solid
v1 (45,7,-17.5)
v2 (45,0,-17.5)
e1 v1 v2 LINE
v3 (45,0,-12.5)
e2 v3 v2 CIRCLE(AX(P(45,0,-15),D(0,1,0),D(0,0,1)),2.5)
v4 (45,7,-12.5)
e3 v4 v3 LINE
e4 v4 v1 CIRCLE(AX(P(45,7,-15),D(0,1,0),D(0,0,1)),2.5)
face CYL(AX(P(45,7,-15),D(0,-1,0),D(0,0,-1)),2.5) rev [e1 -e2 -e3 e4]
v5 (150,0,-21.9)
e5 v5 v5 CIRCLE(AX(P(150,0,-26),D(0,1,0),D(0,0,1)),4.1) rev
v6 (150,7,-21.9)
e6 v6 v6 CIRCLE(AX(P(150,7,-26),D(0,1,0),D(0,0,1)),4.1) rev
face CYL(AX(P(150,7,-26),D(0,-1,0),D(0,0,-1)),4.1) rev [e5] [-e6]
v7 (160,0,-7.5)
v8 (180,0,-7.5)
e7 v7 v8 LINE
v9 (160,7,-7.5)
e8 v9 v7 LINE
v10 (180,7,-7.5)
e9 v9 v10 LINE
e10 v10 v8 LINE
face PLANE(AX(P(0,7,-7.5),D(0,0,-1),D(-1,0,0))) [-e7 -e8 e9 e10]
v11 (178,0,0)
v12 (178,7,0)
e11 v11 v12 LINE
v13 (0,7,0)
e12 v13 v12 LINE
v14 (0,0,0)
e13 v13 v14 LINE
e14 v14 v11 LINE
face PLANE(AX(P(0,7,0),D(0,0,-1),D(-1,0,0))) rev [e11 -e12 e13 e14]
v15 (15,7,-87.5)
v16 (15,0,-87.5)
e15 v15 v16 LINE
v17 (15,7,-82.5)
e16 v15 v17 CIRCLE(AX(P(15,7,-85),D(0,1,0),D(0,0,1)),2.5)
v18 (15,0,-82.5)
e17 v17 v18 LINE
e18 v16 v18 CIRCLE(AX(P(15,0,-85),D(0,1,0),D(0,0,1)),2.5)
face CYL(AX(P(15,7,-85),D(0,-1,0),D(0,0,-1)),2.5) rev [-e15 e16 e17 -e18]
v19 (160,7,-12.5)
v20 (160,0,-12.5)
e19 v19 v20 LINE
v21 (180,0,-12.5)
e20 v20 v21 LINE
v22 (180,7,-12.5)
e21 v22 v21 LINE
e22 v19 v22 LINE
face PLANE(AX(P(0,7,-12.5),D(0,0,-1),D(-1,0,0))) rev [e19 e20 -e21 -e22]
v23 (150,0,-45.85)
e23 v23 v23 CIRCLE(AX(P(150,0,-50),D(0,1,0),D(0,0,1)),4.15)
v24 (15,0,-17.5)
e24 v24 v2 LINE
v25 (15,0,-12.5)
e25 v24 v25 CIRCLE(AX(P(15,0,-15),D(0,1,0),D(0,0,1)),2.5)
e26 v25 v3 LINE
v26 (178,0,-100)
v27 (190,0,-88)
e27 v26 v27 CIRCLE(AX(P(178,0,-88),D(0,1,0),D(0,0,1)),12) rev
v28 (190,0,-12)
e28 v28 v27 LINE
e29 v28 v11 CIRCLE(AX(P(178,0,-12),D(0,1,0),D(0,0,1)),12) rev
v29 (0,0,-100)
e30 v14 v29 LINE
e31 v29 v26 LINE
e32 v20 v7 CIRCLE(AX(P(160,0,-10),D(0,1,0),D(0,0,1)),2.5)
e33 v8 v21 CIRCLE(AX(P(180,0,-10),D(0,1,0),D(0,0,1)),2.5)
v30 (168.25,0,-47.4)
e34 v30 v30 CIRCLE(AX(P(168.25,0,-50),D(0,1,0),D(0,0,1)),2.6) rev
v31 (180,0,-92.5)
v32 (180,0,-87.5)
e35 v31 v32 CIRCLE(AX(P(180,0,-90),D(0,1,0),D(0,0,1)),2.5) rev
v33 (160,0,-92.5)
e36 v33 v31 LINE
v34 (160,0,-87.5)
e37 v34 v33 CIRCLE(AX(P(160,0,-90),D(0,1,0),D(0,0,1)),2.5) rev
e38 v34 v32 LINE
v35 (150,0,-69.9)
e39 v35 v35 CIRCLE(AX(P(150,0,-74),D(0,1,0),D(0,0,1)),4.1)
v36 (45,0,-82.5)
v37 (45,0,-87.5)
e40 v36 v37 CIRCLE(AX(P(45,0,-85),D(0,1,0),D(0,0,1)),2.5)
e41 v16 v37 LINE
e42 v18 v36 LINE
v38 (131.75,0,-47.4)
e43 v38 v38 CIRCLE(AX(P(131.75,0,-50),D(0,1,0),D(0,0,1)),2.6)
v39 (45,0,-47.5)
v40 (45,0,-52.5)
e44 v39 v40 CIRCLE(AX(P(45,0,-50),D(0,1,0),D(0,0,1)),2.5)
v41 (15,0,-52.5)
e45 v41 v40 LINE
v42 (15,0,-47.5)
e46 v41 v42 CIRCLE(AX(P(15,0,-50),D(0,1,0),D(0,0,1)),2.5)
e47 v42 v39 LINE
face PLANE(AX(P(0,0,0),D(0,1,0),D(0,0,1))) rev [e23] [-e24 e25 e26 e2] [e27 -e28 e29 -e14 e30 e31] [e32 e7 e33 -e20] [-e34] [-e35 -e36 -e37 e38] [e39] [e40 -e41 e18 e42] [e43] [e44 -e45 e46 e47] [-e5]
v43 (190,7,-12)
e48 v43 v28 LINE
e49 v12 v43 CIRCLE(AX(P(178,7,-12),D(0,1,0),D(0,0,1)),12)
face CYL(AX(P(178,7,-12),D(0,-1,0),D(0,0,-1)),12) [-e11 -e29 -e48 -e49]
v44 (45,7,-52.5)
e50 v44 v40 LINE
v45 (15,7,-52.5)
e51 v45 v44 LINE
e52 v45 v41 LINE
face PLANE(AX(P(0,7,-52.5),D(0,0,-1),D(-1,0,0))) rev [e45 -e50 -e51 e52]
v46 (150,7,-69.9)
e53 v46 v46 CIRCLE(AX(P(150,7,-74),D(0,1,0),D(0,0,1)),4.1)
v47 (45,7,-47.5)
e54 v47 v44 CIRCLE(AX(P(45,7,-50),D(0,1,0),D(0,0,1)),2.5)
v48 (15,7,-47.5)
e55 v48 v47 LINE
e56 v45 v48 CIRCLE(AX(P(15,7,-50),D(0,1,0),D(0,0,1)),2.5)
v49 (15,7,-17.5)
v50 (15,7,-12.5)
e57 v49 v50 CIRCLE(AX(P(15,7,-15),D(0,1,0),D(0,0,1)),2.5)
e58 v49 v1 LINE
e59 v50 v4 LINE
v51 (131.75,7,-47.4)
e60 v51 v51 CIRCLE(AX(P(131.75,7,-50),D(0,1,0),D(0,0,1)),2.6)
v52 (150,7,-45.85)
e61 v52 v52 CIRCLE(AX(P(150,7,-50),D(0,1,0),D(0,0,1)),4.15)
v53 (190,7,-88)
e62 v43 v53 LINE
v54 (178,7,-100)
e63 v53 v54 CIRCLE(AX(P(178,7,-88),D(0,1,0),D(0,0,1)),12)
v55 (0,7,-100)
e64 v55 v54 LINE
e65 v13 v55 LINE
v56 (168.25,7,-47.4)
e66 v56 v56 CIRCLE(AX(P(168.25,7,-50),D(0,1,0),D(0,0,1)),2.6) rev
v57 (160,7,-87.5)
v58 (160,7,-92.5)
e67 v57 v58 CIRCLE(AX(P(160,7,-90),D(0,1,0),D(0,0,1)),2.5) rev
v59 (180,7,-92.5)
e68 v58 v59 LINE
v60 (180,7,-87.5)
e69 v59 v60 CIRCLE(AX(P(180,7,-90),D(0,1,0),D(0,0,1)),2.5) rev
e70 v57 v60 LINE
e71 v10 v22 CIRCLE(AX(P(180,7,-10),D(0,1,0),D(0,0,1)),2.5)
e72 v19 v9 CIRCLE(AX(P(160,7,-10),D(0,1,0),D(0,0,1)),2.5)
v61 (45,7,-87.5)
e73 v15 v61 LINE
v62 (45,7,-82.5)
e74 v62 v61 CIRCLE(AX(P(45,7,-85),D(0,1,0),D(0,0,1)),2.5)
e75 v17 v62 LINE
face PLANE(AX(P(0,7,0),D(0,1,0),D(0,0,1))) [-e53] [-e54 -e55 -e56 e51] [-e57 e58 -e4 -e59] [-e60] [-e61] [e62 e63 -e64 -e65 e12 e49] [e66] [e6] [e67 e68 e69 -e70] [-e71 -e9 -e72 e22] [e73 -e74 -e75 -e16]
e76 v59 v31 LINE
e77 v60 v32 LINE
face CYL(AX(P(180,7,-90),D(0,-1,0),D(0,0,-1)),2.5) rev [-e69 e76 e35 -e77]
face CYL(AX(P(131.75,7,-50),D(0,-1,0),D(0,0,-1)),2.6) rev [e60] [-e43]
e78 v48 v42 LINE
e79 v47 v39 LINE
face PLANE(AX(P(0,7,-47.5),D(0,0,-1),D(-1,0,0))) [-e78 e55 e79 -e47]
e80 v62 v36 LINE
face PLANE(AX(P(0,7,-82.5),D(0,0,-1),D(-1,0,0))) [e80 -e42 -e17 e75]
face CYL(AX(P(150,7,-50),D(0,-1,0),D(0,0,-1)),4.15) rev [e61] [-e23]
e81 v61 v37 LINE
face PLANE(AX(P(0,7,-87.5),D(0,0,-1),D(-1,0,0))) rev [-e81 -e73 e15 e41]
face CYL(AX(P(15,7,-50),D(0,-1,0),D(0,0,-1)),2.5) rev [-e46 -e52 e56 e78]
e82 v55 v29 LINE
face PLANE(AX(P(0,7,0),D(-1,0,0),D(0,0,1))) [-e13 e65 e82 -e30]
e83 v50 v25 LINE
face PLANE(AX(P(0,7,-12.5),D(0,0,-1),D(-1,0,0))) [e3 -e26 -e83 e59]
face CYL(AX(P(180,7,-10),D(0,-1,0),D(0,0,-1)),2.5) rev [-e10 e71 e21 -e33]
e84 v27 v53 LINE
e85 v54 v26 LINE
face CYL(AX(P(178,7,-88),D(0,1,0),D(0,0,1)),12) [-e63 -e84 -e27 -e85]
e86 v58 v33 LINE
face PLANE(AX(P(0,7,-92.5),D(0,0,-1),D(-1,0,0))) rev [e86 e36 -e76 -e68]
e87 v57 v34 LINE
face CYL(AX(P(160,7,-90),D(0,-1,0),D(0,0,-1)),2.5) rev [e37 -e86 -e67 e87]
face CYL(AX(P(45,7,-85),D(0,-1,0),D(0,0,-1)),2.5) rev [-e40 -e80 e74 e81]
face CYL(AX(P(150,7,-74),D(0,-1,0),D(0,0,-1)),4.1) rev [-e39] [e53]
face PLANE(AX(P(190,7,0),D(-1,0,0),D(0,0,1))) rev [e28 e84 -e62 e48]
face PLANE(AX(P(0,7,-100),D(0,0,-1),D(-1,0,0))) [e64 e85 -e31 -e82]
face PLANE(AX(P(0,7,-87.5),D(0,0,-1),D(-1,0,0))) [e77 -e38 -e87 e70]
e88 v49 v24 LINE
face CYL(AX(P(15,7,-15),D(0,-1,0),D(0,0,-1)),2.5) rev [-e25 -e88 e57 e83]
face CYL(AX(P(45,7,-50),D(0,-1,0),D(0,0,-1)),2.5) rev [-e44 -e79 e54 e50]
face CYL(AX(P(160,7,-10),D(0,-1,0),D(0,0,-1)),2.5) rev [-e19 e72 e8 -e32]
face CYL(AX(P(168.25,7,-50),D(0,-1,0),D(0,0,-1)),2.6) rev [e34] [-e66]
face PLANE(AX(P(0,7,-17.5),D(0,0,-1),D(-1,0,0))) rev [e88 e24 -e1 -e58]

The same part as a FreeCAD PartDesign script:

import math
import FreeCAD as App
import Part
import Sketcher
from FreeCAD import Vector


def edges_at(feature, points):
    """Names of the edges that pass closest to the given points."""
    edges = feature.Shape.Edges
    near = lambda p: min(range(len(edges)), key=lambda i: edges[i].distToShape(Part.Vertex(*p))[0])
    return sorted({f"Edge{near(p) + 1}" for p in points})

doc = App.newDocument("Part")
body = doc.addObject("PartDesign::Body", "Body")

sketch1 = doc.addObject("Sketcher::SketchObject", "Sketch")
body.addObject(sketch1)
sketch1.AttachmentSupport = (doc.XZ_Plane, [""])
sketch1.MapMode = "FlatFace"
sketch1.addGeometry(Part.LineSegment(Vector(0, -100, 0), Vector(0, 0, 0)), False)
sketch1.addGeometry(Part.LineSegment(Vector(0, 0, 0), Vector(190, 0, 0)), False)
sketch1.addGeometry(Part.LineSegment(Vector(190, 0, 0), Vector(190, -100, 0)), False)
sketch1.addGeometry(Part.LineSegment(Vector(190, -100, 0), Vector(0, -100, 0)), False)
sketch1.addGeometry(Part.ArcOfCircle(Part.Circle(Vector(15, -15, 0), Vector(0, 0, 1), 2.5), math.radians(90), math.radians(270)), False)
sketch1.addGeometry(Part.LineSegment(Vector(15, -17.5, 0), Vector(45, -17.5, 0)), False)
sketch1.addGeometry(Part.ArcOfCircle(Part.Circle(Vector(45, -15, 0), Vector(0, 0, 1), 2.5), math.radians(-90), math.radians(90)), False)
sketch1.addGeometry(Part.LineSegment(Vector(45, -12.5, 0), Vector(15, -12.5, 0)), False)
sketch1.addGeometry(Part.ArcOfCircle(Part.Circle(Vector(160, -10, 0), Vector(0, 0, 1), 2.5), math.radians(90), math.radians(270)), False)
sketch1.addGeometry(Part.LineSegment(Vector(160, -12.5, 0), Vector(180, -12.5, 0)), False)
sketch1.addGeometry(Part.ArcOfCircle(Part.Circle(Vector(180, -10, 0), Vector(0, 0, 1), 2.5), math.radians(-90), math.radians(90)), False)
sketch1.addGeometry(Part.LineSegment(Vector(180, -7.5, 0), Vector(160, -7.5, 0)), False)
sketch1.addGeometry(Part.Circle(Vector(150, -26, 0), Vector(0, 0, 1), 4.1), False)
sketch1.addGeometry(Part.ArcOfCircle(Part.Circle(Vector(15, -50, 0), Vector(0, 0, 1), 2.5), math.radians(90), math.radians(270)), False)
sketch1.addGeometry(Part.LineSegment(Vector(15, -52.5, 0), Vector(45, -52.5, 0)), False)
sketch1.addGeometry(Part.ArcOfCircle(Part.Circle(Vector(45, -50, 0), Vector(0, 0, 1), 2.5), math.radians(-90), math.radians(90)), False)
sketch1.addGeometry(Part.LineSegment(Vector(45, -47.5, 0), Vector(15, -47.5, 0)), False)
sketch1.addGeometry(Part.ArcOfCircle(Part.Circle(Vector(15, -85, 0), Vector(0, 0, 1), 2.5), math.radians(90), math.radians(270)), False)
sketch1.addGeometry(Part.LineSegment(Vector(15, -87.5, 0), Vector(45, -87.5, 0)), False)
sketch1.addGeometry(Part.ArcOfCircle(Part.Circle(Vector(45, -85, 0), Vector(0, 0, 1), 2.5), math.radians(-90), math.radians(90)), False)
sketch1.addGeometry(Part.LineSegment(Vector(45, -82.5, 0), Vector(15, -82.5, 0)), False)
sketch1.addGeometry(Part.Circle(Vector(131.75, -50, 0), Vector(0, 0, 1), 2.6), False)
sketch1.addGeometry(Part.Circle(Vector(150, -50, 0), Vector(0, 0, 1), 4.15), False)
sketch1.addGeometry(Part.Circle(Vector(168.25, -50, 0), Vector(0, 0, 1), 2.6), False)
sketch1.addGeometry(Part.Circle(Vector(150, -74, 0), Vector(0, 0, 1), 4.1), False)
sketch1.addGeometry(Part.LineSegment(Vector(180, -87.5, 0), Vector(160, -87.5, 0)), False)
sketch1.addGeometry(Part.ArcOfCircle(Part.Circle(Vector(160, -90, 0), Vector(0, 0, 1), 2.5), math.radians(90), math.radians(270)), False)
sketch1.addGeometry(Part.LineSegment(Vector(160, -92.5, 0), Vector(180, -92.5, 0)), False)
sketch1.addGeometry(Part.ArcOfCircle(Part.Circle(Vector(180, -90, 0), Vector(0, 0, 1), 2.5), math.radians(-90), math.radians(90)), False)
sketch1.addConstraint(Sketcher.Constraint("Coincident", 0, 2, 1, 1))
sketch1.addConstraint(Sketcher.Constraint("Coincident", 1, 2, 2, 1))
sketch1.addConstraint(Sketcher.Constraint("Coincident", 2, 2, 3, 1))
sketch1.addConstraint(Sketcher.Constraint("Coincident", 3, 2, 0, 1))
sketch1.addConstraint(Sketcher.Constraint("Tangent", 4, 2, 5, 1))
sketch1.addConstraint(Sketcher.Constraint("Tangent", 5, 2, 6, 1))
sketch1.addConstraint(Sketcher.Constraint("Tangent", 6, 2, 7, 1))
sketch1.addConstraint(Sketcher.Constraint("Tangent", 7, 2, 4, 1))
sketch1.addConstraint(Sketcher.Constraint("Tangent", 8, 2, 9, 1))
sketch1.addConstraint(Sketcher.Constraint("Tangent", 9, 2, 10, 1))
sketch1.addConstraint(Sketcher.Constraint("Tangent", 10, 2, 11, 1))
sketch1.addConstraint(Sketcher.Constraint("Tangent", 11, 2, 8, 1))
sketch1.addConstraint(Sketcher.Constraint("Tangent", 13, 2, 14, 1))
sketch1.addConstraint(Sketcher.Constraint("Tangent", 14, 2, 15, 1))
sketch1.addConstraint(Sketcher.Constraint("Tangent", 15, 2, 16, 1))
sketch1.addConstraint(Sketcher.Constraint("Tangent", 16, 2, 13, 1))
sketch1.addConstraint(Sketcher.Constraint("Tangent", 17, 2, 18, 1))
sketch1.addConstraint(Sketcher.Constraint("Tangent", 18, 2, 19, 1))
sketch1.addConstraint(Sketcher.Constraint("Tangent", 19, 2, 20, 1))
sketch1.addConstraint(Sketcher.Constraint("Tangent", 20, 2, 17, 1))
sketch1.addConstraint(Sketcher.Constraint("Tangent", 25, 2, 26, 1))
sketch1.addConstraint(Sketcher.Constraint("Tangent", 26, 2, 27, 1))
sketch1.addConstraint(Sketcher.Constraint("Tangent", 27, 2, 28, 1))
sketch1.addConstraint(Sketcher.Constraint("Tangent", 28, 2, 25, 1))
sketch1.addConstraint(Sketcher.Constraint("Vertical", 0))
sketch1.addConstraint(Sketcher.Constraint("Horizontal", 1))
sketch1.addConstraint(Sketcher.Constraint("Vertical", 2))
sketch1.addConstraint(Sketcher.Constraint("Horizontal", 3))
sketch1.addConstraint(Sketcher.Constraint("Horizontal", 5))
sketch1.addConstraint(Sketcher.Constraint("Horizontal", 7))
sketch1.addConstraint(Sketcher.Constraint("Horizontal", 9))
sketch1.addConstraint(Sketcher.Constraint("Horizontal", 11))
sketch1.addConstraint(Sketcher.Constraint("Horizontal", 14))
sketch1.addConstraint(Sketcher.Constraint("Horizontal", 16))
sketch1.addConstraint(Sketcher.Constraint("Horizontal", 18))
sketch1.addConstraint(Sketcher.Constraint("Horizontal", 20))
sketch1.addConstraint(Sketcher.Constraint("Horizontal", 25))
sketch1.addConstraint(Sketcher.Constraint("Horizontal", 27))
sketch1.addConstraint(Sketcher.Constraint("Coincident", 0, 2, -1, 1))
sketch1.addConstraint(Sketcher.Constraint("Equal", 6, 8))
sketch1.addConstraint(Sketcher.Constraint("Equal", 10, 13))
sketch1.addConstraint(Sketcher.Constraint("Equal", 15, 17))
sketch1.addConstraint(Sketcher.Constraint("Equal", 21, 23))
sketch1.addConstraint(Sketcher.Constraint("Equal", 12, 24))
sketch1.addConstraint(Sketcher.Constraint("Equal", 19, 26))
sketch1.addConstraint(Sketcher.Constraint("Horizontal", 15, 3, 21, 3))
sketch1.addConstraint(Sketcher.Constraint("Horizontal", 21, 3, 22, 3))
sketch1.addConstraint(Sketcher.Constraint("Horizontal", 22, 3, 23, 3))
sketch1.addConstraint(Sketcher.Constraint("Horizontal", 7, 2, 8, 2))
sketch1.addConstraint(Sketcher.Constraint("Horizontal", 18, 2, 25, 2))
sketch1.addConstraint(Sketcher.Constraint("Vertical", 4, 3, 13, 3))
sketch1.addConstraint(Sketcher.Constraint("Vertical", 6, 3, 15, 3))
sketch1.addConstraint(Sketcher.Constraint("Vertical", 13, 3, 17, 3))
sketch1.addConstraint(Sketcher.Constraint("Vertical", 15, 3, 19, 3))
sketch1.addConstraint(Sketcher.Constraint("Vertical", 12, 3, 22, 3))
sketch1.addConstraint(Sketcher.Constraint("Vertical", 22, 3, 24, 3))
sketch1.addConstraint(Sketcher.Constraint("Vertical", 8, 3, 26, 3))
sketch1.addConstraint(Sketcher.Constraint("Vertical", 10, 3, 28, 3))
sketch1.addConstraint(Sketcher.Constraint("Diameter", 12, 8.2))
sketch1.addConstraint(Sketcher.Constraint("Diameter", 21, 5.2))
sketch1.addConstraint(Sketcher.Constraint("Diameter", 22, 8.3))
sketch1.addConstraint(Sketcher.Constraint("Radius", 4, 2.5))
sketch1.addConstraint(Sketcher.Constraint("DistanceX", 1, 1, 1, 2, 190.0))
sketch1.addConstraint(Sketcher.Constraint("DistanceX", 5, 1, 5, 2, 30.0))
sketch1.addConstraint(Sketcher.Constraint("DistanceX", 9, 1, 9, 2, 20.0))
sketch1.addConstraint(Sketcher.Constraint("DistanceY", 0, 1, 0, 2, 100.0))
sketch1.addConstraint(Sketcher.Constraint("DistanceX", -1, 1, 4, 3, 15.0))
sketch1.addConstraint(Sketcher.Constraint("DistanceY", 4, 3, -1, 1, 15.0))
sketch1.addConstraint(Sketcher.Constraint("DistanceX", -1, 1, 8, 3, 160.0))
sketch1.addConstraint(Sketcher.Constraint("DistanceX", -1, 1, 12, 3, 150.0))
sketch1.addConstraint(Sketcher.Constraint("DistanceY", 12, 3, -1, 1, 26.0))
sketch1.addConstraint(Sketcher.Constraint("DistanceY", 13, 3, -1, 1, 50.0))
sketch1.addConstraint(Sketcher.Constraint("DistanceY", 17, 3, -1, 1, 85.0))
sketch1.addConstraint(Sketcher.Constraint("DistanceY", 24, 3, -1, 1, 74.0))
sketch1.addConstraint(Sketcher.Constraint("DistanceX", 21, 3, 23, 3, 36.5))
sketch1.addConstraint(Sketcher.Constraint("DistanceX", -1, 1, 21, 3, 131.75))
pad1 = doc.addObject("PartDesign::Pad", "Pad")
body.addObject(pad1)
pad1.Profile = sketch1
pad1.Length = 7
pad1.Reversed = True
doc.recompute()

fillet = doc.addObject("PartDesign::Fillet", "Fillet")
body.addObject(fillet)
fillet.Base = (pad1, edges_at(pad1, [(190, 3.5, -100), (190, 3.5, 0)]))
fillet.Radius = 12

doc.recompute()
